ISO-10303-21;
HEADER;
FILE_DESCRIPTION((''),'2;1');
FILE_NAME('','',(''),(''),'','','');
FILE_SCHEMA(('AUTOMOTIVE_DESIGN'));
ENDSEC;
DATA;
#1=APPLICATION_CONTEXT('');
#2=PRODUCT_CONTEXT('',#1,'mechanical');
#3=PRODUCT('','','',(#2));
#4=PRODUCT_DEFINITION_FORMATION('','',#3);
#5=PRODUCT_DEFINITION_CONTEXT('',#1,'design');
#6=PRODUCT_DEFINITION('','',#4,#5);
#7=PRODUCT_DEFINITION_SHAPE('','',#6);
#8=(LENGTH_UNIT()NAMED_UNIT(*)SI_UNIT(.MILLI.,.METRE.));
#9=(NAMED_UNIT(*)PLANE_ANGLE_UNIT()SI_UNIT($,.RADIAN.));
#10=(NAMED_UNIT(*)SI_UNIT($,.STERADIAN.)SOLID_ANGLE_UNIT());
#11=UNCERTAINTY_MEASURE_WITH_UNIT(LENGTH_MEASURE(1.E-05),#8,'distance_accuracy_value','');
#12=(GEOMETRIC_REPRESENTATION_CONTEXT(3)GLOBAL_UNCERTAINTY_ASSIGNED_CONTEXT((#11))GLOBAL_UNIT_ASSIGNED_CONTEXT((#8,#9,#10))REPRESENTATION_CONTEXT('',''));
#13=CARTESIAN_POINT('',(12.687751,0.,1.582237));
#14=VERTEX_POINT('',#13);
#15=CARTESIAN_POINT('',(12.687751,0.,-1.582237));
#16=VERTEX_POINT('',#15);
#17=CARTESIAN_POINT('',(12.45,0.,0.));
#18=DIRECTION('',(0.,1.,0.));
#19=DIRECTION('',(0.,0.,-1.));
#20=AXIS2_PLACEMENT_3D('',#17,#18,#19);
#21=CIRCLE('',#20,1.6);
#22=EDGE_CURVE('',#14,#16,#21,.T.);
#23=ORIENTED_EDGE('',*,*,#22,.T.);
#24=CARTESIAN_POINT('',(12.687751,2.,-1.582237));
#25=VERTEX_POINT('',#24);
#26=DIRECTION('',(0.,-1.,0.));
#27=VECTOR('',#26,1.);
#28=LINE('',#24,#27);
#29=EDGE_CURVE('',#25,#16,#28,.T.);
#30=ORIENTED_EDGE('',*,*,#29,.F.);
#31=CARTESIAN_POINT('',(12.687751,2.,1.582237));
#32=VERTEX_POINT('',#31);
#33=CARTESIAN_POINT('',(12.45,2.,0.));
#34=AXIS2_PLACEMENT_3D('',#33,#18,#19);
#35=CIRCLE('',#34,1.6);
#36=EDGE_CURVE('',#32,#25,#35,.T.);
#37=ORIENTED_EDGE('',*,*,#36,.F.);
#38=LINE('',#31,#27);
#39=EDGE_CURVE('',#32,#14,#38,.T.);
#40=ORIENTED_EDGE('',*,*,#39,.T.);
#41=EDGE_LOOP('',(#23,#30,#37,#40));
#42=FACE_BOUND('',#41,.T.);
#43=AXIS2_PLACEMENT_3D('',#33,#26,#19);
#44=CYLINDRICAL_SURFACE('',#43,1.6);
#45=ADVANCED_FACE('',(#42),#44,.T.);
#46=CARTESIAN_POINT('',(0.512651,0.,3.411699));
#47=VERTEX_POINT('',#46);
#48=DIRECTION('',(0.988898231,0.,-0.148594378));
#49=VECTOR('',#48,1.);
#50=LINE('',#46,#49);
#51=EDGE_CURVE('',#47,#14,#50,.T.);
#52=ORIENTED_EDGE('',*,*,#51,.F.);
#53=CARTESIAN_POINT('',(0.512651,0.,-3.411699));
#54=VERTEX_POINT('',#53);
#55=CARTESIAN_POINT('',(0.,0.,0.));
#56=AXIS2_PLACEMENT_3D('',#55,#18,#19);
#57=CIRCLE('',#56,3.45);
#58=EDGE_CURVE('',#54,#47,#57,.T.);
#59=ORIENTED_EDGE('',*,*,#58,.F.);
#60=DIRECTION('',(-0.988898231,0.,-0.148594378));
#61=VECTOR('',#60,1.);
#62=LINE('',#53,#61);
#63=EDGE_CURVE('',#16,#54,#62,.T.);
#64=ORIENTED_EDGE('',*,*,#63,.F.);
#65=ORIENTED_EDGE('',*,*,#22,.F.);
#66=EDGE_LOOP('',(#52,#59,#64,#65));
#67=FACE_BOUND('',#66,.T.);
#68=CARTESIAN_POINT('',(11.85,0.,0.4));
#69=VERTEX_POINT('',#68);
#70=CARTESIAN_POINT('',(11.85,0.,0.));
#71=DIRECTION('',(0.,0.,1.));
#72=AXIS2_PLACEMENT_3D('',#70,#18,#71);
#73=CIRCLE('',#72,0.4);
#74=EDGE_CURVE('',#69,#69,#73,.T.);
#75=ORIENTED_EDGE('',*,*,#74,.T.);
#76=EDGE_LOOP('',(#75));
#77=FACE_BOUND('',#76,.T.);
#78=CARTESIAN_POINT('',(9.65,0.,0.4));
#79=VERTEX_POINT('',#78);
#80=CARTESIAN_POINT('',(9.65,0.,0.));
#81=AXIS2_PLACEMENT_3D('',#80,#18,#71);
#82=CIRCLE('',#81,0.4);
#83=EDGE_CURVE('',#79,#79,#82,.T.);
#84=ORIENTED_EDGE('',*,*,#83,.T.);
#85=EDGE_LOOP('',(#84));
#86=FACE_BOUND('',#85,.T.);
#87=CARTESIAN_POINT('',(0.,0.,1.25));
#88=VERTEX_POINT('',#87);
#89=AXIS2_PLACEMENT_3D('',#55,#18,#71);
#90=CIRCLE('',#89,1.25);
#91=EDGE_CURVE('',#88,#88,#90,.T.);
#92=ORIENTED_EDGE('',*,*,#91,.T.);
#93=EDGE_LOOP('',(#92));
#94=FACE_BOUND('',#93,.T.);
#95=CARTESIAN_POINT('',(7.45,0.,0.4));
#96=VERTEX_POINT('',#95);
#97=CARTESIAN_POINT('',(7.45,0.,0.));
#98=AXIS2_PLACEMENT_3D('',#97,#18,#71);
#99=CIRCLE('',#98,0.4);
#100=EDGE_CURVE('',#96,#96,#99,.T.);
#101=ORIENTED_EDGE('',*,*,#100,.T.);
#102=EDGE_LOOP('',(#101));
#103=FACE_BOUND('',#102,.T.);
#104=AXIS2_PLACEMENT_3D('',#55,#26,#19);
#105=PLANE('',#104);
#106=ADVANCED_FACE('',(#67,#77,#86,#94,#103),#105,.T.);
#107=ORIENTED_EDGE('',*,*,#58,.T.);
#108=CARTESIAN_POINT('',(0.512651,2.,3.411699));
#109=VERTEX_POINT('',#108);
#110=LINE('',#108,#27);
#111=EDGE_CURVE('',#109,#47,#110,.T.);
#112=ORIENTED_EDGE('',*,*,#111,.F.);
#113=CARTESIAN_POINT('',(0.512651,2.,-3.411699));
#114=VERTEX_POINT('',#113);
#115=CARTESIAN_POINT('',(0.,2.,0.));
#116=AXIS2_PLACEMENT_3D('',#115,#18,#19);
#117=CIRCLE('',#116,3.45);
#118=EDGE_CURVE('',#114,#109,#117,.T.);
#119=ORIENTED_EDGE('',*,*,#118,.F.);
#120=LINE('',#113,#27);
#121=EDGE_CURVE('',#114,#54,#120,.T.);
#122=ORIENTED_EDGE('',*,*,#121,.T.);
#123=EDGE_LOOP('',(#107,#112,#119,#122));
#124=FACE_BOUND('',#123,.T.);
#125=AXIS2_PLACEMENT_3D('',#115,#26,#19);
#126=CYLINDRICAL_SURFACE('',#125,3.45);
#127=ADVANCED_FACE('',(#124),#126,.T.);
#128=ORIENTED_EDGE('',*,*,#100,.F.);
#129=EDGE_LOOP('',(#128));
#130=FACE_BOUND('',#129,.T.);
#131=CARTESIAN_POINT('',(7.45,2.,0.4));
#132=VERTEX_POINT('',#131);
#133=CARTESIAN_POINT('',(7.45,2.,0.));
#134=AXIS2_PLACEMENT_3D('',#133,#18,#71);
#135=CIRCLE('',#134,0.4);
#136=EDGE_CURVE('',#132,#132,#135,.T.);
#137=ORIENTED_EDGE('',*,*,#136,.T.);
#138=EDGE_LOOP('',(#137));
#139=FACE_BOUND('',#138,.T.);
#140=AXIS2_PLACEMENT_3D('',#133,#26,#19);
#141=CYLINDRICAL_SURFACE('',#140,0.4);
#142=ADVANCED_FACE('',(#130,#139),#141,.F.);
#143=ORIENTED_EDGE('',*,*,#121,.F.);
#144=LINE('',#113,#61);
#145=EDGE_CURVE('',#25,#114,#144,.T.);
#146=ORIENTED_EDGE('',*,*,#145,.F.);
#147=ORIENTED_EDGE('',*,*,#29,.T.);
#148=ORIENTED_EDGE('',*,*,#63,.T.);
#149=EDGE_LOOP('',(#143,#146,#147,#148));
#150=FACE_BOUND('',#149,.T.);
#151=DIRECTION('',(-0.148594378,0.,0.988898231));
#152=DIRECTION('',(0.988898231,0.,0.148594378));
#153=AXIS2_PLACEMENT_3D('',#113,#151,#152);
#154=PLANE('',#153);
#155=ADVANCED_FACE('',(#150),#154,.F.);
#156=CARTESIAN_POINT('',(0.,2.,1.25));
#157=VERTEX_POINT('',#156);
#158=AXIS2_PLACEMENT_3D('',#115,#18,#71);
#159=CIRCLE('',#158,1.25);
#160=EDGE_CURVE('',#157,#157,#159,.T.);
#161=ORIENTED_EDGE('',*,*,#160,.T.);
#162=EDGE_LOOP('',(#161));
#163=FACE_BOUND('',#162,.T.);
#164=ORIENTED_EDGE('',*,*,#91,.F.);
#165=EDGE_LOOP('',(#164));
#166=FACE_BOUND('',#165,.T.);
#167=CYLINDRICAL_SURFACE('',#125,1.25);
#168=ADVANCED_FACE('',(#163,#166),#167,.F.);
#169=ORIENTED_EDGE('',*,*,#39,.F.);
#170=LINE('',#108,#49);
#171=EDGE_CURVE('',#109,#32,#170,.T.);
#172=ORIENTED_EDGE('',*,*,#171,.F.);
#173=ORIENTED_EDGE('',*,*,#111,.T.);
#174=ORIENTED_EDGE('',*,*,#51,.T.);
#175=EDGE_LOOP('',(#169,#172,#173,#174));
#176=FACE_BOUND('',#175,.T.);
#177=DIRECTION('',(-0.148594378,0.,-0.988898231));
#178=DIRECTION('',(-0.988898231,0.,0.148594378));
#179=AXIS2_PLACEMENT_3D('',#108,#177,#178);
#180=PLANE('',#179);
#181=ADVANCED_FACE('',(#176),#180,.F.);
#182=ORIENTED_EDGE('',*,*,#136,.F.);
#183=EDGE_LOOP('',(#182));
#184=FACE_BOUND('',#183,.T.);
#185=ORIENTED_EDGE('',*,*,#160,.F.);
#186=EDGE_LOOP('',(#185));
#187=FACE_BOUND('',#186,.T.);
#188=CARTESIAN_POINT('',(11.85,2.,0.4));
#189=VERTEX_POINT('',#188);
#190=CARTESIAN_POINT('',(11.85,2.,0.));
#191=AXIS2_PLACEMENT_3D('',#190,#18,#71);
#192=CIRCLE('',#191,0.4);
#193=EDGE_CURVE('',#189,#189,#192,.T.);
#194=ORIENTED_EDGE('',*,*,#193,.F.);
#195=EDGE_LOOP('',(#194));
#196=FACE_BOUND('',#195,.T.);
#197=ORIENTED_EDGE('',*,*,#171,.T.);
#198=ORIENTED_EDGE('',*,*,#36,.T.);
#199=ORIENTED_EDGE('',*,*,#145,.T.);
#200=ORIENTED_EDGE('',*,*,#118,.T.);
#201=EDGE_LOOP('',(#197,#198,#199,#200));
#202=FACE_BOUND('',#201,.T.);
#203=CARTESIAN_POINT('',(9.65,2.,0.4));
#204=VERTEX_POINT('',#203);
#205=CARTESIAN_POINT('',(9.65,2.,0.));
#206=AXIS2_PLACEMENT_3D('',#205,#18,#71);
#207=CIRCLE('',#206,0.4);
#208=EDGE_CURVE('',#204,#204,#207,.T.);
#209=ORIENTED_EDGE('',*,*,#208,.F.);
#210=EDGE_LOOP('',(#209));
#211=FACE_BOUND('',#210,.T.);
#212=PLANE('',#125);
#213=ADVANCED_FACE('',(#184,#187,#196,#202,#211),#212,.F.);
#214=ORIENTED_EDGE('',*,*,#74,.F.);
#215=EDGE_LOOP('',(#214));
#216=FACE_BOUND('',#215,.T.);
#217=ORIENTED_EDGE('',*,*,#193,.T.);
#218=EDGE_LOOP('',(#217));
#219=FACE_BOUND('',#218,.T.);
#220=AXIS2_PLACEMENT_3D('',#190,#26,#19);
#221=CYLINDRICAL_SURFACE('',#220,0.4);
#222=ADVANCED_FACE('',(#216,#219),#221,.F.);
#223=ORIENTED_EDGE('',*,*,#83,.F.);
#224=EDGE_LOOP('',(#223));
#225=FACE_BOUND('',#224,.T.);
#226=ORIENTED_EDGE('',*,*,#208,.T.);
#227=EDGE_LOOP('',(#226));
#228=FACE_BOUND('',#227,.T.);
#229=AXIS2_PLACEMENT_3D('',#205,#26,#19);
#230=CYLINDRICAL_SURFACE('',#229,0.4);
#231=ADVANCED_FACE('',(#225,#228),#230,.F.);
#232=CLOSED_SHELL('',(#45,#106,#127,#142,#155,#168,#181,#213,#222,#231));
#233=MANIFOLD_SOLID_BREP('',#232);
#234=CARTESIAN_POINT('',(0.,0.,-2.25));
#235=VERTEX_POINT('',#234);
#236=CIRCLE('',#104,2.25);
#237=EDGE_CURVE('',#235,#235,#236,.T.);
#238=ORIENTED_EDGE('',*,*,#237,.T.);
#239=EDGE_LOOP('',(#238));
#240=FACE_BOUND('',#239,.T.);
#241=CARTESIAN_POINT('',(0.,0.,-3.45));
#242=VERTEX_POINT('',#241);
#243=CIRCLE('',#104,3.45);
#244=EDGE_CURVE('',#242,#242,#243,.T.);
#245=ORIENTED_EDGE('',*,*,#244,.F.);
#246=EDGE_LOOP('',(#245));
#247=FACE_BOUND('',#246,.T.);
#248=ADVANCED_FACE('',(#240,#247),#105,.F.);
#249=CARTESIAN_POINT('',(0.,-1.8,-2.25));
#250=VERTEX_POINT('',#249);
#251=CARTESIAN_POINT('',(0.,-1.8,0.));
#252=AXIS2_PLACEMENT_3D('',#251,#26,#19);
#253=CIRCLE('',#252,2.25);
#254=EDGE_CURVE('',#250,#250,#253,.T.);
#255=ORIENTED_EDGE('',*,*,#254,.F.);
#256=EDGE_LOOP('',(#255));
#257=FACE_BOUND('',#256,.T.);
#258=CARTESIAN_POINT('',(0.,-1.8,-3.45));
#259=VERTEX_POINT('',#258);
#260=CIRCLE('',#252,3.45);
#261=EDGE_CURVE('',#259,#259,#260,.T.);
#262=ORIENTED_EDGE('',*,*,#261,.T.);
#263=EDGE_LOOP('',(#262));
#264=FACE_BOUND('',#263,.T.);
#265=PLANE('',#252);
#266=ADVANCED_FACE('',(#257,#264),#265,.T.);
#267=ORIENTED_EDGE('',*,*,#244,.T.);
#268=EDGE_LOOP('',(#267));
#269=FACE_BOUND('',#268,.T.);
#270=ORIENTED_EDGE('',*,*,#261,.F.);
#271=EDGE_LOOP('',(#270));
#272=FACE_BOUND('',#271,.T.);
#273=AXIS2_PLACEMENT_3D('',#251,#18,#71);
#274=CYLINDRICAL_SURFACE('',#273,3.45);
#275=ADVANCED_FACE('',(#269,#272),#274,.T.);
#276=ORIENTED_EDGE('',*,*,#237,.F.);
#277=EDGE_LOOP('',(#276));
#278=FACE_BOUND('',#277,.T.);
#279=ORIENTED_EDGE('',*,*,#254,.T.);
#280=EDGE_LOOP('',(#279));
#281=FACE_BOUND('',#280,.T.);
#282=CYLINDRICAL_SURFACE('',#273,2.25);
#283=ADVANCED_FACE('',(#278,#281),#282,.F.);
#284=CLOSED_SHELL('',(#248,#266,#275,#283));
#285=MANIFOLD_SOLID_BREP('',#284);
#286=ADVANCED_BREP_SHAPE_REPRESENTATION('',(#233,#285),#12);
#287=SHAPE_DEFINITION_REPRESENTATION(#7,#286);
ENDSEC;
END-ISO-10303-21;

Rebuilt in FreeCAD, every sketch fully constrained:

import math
import FreeCAD as App
import Part
import Sketcher

doc = App.newDocument("Part")
body = doc.addObject("PartDesign::Body", "Body")

# Sketch on XZ plane
sketch1 = body.newObject("Sketcher::SketchObject", "Sketch")
sketch1.AttachmentSupport = (doc.getObject("XZ_Plane"), [""])
sketch1.MapMode = "FlatFace"
sketch1.addGeometry([
    Part.LineSegment(App.Vector(12.69, -1.58, 0), App.Vector(0.51, -3.41, 0)),  # 0
    Part.ArcOfCircle(Part.Circle(App.Vector(0, 0, 0), App.Vector(0, 0, 1), 3.45), math.radians(81), math.radians(279)),  # 1
    Part.LineSegment(App.Vector(0.51, 3.41, 0), App.Vector(12.69, 1.58, 0)),  # 2
    Part.ArcOfCircle(Part.Circle(App.Vector(12.45, 0, 0), App.Vector(0, 0, 1), 1.6), math.radians(-81), math.radians(81)),  # 3
    Part.Circle(App.Vector(11.85, 0, 0), App.Vector(0, 0, 1), 0.4),  # 4
    Part.Circle(App.Vector(9.65, 0, 0), App.Vector(0, 0, 1), 0.4),  # 5
    Part.Circle(App.Vector(7.45, 0, 0), App.Vector(0, 0, 1), 0.4),  # 6
    Part.Circle(App.Vector(0, 0, 0), App.Vector(0, 0, 1), 1.25),  # 7
], False)
sketch1.addConstraint([
    Sketcher.Constraint("Tangent", 0, 2, 1, 2),
    Sketcher.Constraint("Tangent", 1, 1, 2, 1),
    Sketcher.Constraint("Tangent", 2, 2, 3, 2),
    Sketcher.Constraint("Tangent", 3, 1, 0, 1),
    Sketcher.Constraint("Coincident", 1, 3, -1, 1),
    Sketcher.Constraint("Coincident", 7, 3, -1, 1),
    Sketcher.Constraint("Equal", 4, 5),
    Sketcher.Constraint("Equal", 5, 6),
    Sketcher.Constraint("PointOnObject", 3, 3, -1),
    Sketcher.Constraint("PointOnObject", 4, 3, -1),
    Sketcher.Constraint("PointOnObject", 5, 3, -1),
    Sketcher.Constraint("PointOnObject", 6, 3, -1),
    Sketcher.Constraint("Diameter", 4, 0.8),
    Sketcher.Constraint("Diameter", 7, 2.5),
    Sketcher.Constraint("Radius", 3, 1.6),
    Sketcher.Constraint("Radius", 1, 3.45),
    Sketcher.Constraint("DistanceX", 6, 3, 3, 3, 5.0),
    Sketcher.Constraint("DistanceX", 4, 3, 3, 3, 0.6),
    Sketcher.Constraint("DistanceX", 5, 3, 4, 3, 2.2),
    Sketcher.Constraint("DistanceX", -1, 1, 3, 3, 12.45),
])
pad1 = body.newObject("PartDesign::Pad", "Pad")
pad1.Profile = sketch1
pad1.Length = 2
pad1.Reversed = True
body2 = doc.addObject("PartDesign::Body", "Body001")

# Sketch on XZ plane
sketch2 = body2.newObject("Sketcher::SketchObject", "Sketch001")
sketch2.AttachmentSupport = (doc.getObject("XZ_Plane001"), [""])
sketch2.MapMode = "FlatFace"
sketch2.addGeometry([
    Part.Circle(App.Vector(0, 0, 0), App.Vector(0, 0, 1), 3.5),
    Part.Circle(App.Vector(0, 0, 0), App.Vector(0, 0, 1), 2.2),
], False)
sketch2.addConstraint([
    Sketcher.Constraint("Coincident", 0, 3, -1, 1),
    Sketcher.Constraint("Coincident", 1, 3, -1, 1),
    Sketcher.Constraint("Diameter", 0, 6.9),
    Sketcher.Constraint("Diameter", 1, 4.5),
])
pad2 = body2.newObject("PartDesign::Pad", "Pad001")
pad2.Profile = sketch2
pad2.Length = 1.8

doc.recompute()
